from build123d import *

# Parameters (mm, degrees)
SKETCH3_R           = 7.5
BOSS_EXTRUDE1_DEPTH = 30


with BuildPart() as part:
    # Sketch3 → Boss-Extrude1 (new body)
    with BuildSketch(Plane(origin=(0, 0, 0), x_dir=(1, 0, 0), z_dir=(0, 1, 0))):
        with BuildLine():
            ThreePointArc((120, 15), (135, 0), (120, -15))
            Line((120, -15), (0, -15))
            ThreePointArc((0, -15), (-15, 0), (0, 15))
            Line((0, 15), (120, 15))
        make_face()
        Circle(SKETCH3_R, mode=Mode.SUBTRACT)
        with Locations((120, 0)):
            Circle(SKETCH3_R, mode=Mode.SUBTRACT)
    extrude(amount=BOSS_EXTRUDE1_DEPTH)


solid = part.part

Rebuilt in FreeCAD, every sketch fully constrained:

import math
import FreeCAD as App
import Part
import Sketcher

V = App.Vector
Q = App.Units.Quantity

doc = App.newDocument("Part")
body = doc.addObject("PartDesign::Body", "Body")

sketch1 = body.newObject("Sketcher::SketchObject", "Sketch")
sketch1.AttachmentSupport = (doc.getObject("XZ_Plane"), [""])
sketch1.MapMode = "FlatFace"
sketch1.addGeometry(Part.ArcOfCircle(Part.Circle(V(120, 0, 0), V(0, 0, 1), 15), math.radians(-90), math.radians(90)), False)
sketch1.addGeometry(Part.LineSegment(V(120, -15, 0), V(0, -15, 0)), False)
sketch1.addGeometry(Part.ArcOfCircle(Part.Circle(V(0, 0, 0), V(0, 0, 1), 15), math.radians(90), math.radians(270)), False)
sketch1.addGeometry(Part.LineSegment(V(0, 15, 0), V(120, 15, 0)), False)
sketch1.addGeometry(Part.Circle(V(120, 0, 0), V(0, 0, 1), 7.5), False)
sketch1.addGeometry(Part.Circle(V(0, 0, 0), V(0, 0, 1), 7.5), False)
sketch1.addConstraint(Sketcher.Constraint("Tangent", 0, 1, 1, 1))
sketch1.addConstraint(Sketcher.Constraint("Tangent", 1, 2, 2, 2))
sketch1.addConstraint(Sketcher.Constraint("Tangent", 2, 1, 3, 1))
sketch1.addConstraint(Sketcher.Constraint("Tangent", 3, 2, 0, 2))
sketch1.addConstraint(Sketcher.Constraint("Horizontal", 1))
sketch1.addConstraint(Sketcher.Constraint("Horizontal", 3))
sketch1.addConstraint(Sketcher.Constraint("Coincident", 2, 3, -1, 1))
sketch1.addConstraint(Sketcher.Constraint("Coincident", 5, 3, -1, 1))
sketch1.addConstraint(Sketcher.Constraint("Coincident", 4, 3, 0, 3))
sketch1.addConstraint(Sketcher.Constraint("Equal", 4, 5))
sketch1.addConstraint(Sketcher.Constraint("Diameter", 4, Q("15 mm")))
sketch1.addConstraint(Sketcher.Constraint("Radius", 0, Q("15 mm")))
sketch1.addConstraint(Sketcher.Constraint("DistanceX", 1, 2, 1, 1, Q("120 mm")))
pad1 = body.newObject("PartDesign::Pad", "Pad")
pad1.Profile = sketch1
pad1.Length = 30
pad1.Reversed = True

doc.recompute()
